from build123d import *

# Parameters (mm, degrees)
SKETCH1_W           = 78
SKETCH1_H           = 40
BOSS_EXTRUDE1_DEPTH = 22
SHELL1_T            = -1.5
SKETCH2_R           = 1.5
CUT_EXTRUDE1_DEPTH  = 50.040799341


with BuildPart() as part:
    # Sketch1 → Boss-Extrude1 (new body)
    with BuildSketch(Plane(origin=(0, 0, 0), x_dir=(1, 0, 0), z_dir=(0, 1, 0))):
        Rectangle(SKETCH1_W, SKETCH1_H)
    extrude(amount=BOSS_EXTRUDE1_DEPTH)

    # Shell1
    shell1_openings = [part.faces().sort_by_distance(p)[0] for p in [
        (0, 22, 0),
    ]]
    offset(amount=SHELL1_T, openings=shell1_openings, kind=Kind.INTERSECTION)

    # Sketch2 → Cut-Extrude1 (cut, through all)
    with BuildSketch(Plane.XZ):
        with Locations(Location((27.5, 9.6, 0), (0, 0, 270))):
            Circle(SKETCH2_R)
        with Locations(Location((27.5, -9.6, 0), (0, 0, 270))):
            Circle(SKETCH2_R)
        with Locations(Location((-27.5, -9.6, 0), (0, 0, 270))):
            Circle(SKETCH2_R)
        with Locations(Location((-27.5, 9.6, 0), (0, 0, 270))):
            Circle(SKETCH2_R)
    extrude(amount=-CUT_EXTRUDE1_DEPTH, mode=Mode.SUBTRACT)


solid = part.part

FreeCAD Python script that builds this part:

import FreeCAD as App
import Part
import Sketcher
from FreeCAD import Vector


def faces_at(feature, points):
    """Names of the faces that lie closest to the given points."""
    faces = feature.Shape.Faces
    near = lambda p: min(range(len(faces)), key=lambda i: faces[i].distToShape(Part.Vertex(*p))[0])
    return sorted({f"Face{near(p) + 1}" for p in points})


def add_polygon(sketch, points):
    """Adds a closed chain of lines whose ends are joined by coincident constraints."""
    first, n = sketch.GeometryCount, len(points)
    for a, b in zip(points, points[1:] + points[:1]):
        sketch.addGeometry(Part.LineSegment(App.Vector(*a, 0), App.Vector(*b, 0)), False)
    for i in range(n):
        sketch.addConstraint(Sketcher.Constraint("Coincident", first + i, 2, first + (i + 1) % n, 1))

doc = App.newDocument("Part")
body = doc.addObject("PartDesign::Body", "Body")

sketch1 = body.newObject("Sketcher::SketchObject", "Sketch")
sketch1.AttachmentSupport = (doc.getObject("XZ_Plane"), [""])
sketch1.MapMode = "FlatFace"
add_polygon(sketch1, [(-39, -20), (-39, 20), (39, 20), (39, -20)])
sketch1.addConstraint(Sketcher.Constraint("Vertical", 0))
sketch1.addConstraint(Sketcher.Constraint("Horizontal", 1))
sketch1.addConstraint(Sketcher.Constraint("Vertical", 2))
sketch1.addConstraint(Sketcher.Constraint("Horizontal", 3))
sketch1.addConstraint(Sketcher.Constraint("Symmetric", 0, 2, 2, 2, -1, 1))
sketch1.addConstraint(Sketcher.Constraint("DistanceX", 1, 1, 1, 2, 78.0))
sketch1.addConstraint(Sketcher.Constraint("DistanceY", 0, 1, 0, 2, 40.0))
pad1 = body.newObject("PartDesign::Pad", "Pad")
pad1.Profile = sketch1
pad1.Length = 22
pad1.Reversed = True
doc.recompute()

thickness = body.newObject("PartDesign::Thickness", "Thickness")
thickness.Base = (pad1, faces_at(pad1, [(0, 22, 0)]))
thickness.Value = 1.5
thickness.Reversed = True
thickness.Join = "Intersection"

sketch2 = body.newObject("Sketcher::SketchObject", "Sketch001")
sketch2.AttachmentSupport = (doc.getObject("XZ_Plane"), [""])
sketch2.MapMode = "FlatFace"
sketch2.addGeometry(Part.Circle(Vector(27.5, 9.6, 0), Vector(0, 0, 1), 1.5), False)
sketch2.addGeometry(Part.Circle(Vector(27.5, -9.6, 0), Vector(0, 0, 1), 1.5), False)
sketch2.addGeometry(Part.Circle(Vector(-27.5, -9.6, 0), Vector(0, 0, 1), 1.5), False)
sketch2.addGeometry(Part.Circle(Vector(-27.5, 9.6, 0), Vector(0, 0, 1), 1.5), False)
sketch2.addConstraint(Sketcher.Constraint("Equal", 0, 1))
sketch2.addConstraint(Sketcher.Constraint("Equal", 1, 2))
sketch2.addConstraint(Sketcher.Constraint("Equal", 2, 3))
sketch2.addConstraint(Sketcher.Constraint("Symmetric", 0, 3, 2, 3, -1, 1))
sketch2.addConstraint(Sketcher.Constraint("Symmetric", 1, 3, 3, 3, -1, 1))
sketch2.addConstraint(Sketcher.Constraint("Symmetric", 1, 3, 2, 3, -2))
sketch2.addConstraint(Sketcher.Constraint("Diameter", 0, 3.0))
sketch2.addConstraint(Sketcher.Constraint("DistanceX", 2, 3, 1, 3, 55.0))
sketch2.addConstraint(Sketcher.Constraint("DistanceY", -1, 1, 0, 3, 9.6))
pocket1 = body.newObject("PartDesign::Pocket", "Pocket")
pocket1.Profile = sketch2
pocket1.Type = "ThroughAll"

doc.recompute()
